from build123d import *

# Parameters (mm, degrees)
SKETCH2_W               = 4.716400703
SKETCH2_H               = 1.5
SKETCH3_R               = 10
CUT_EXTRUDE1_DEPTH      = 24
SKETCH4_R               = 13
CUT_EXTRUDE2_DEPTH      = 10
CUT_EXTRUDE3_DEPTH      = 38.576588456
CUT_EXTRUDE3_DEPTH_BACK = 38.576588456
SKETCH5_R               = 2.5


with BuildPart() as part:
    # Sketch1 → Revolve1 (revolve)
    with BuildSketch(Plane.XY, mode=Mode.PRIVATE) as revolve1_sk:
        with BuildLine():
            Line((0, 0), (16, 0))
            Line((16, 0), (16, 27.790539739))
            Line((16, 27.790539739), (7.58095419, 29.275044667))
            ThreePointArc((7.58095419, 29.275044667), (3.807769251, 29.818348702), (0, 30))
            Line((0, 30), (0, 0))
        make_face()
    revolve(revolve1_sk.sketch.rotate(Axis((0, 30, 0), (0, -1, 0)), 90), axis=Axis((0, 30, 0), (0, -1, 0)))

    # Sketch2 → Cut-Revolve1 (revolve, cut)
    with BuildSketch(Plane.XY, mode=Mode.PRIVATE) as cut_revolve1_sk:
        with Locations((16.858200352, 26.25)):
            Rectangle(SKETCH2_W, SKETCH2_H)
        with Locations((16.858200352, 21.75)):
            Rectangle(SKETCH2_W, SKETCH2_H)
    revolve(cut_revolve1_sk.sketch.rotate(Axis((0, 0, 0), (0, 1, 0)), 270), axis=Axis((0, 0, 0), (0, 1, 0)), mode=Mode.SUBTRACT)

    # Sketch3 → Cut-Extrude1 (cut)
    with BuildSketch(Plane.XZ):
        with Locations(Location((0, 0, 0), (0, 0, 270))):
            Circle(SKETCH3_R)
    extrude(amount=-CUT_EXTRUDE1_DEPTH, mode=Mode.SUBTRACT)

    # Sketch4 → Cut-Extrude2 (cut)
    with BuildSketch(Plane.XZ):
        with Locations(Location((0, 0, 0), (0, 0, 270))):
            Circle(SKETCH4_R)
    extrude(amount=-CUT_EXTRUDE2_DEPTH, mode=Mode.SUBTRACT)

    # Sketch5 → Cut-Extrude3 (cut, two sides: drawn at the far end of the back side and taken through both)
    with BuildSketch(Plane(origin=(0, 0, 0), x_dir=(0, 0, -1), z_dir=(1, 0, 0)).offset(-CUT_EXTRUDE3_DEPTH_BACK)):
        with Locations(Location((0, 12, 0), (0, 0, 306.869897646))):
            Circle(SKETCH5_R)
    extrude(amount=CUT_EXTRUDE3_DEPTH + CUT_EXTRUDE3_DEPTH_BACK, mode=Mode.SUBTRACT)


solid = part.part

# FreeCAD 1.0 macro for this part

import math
import FreeCAD as App
import Part
import Sketcher
from FreeCAD import Vector
Q = App.Units.Quantity

doc = App.newDocument("Part")
params = doc.addObject("Spreadsheet::Sheet", "Params")
for row, (alias, value) in enumerate([
    ("sketch1_radius", "40 mm"),
    ("sketch1_width", "16 mm"),
    ("sketch1_height", "30 mm"),
    ("revolution_angle", "360 deg"),
    ("sketch2_height", "1.5 mm"),
    ("groove_angle", "360 deg"),
    ("sketch3_diameter", "20 mm"),
    ("pocket1_length", "24 mm"),
    ("sketch4_diameter", "26 mm"),
    ("pocket2_length", "10 mm"),
    ("sketch5_diameter", "5 mm"),
], start=1):
    params.set(f"A{row}", alias)
    params.set(f"B{row}", "=" + value)
    params.setAlias(f"B{row}", alias)

body = doc.addObject("PartDesign::Body", "Body")

# Sketch on XY plane
sketch1 = body.newObject("Sketcher::SketchObject", "Sketch")
sketch1.AttachmentSupport = (doc.getObject("XY_Plane"), [""])
sketch1.MapMode = "FlatFace"
sketch1.addGeometry(Part.LineSegment(Vector(0, 0, 0), Vector(16, 0, 0)), False)
sketch1.addGeometry(Part.LineSegment(Vector(16, 0, 0), Vector(16, 27.79054, 0)), False)
sketch1.addGeometry(Part.LineSegment(Vector(16, 27.79054, 0), Vector(7.580954, 29.275045, 0)), False)
sketch1.addGeometry(Part.ArcOfCircle(Part.Circle(Vector(0, -10, 0), Vector(0, 0, 1), 40), math.radians(79.075002), math.radians(90)), False)
sketch1.addGeometry(Part.LineSegment(Vector(0, 30, 0), Vector(0, 0, 0)), False)
sketch1.addConstraint(Sketcher.Constraint("Coincident", 0, 2, 1, 1))
sketch1.addConstraint(Sketcher.Constraint("Coincident", 1, 2, 2, 1))
sketch1.addConstraint(Sketcher.Constraint("Coincident", 2, 2, 3, 1))
sketch1.addConstraint(Sketcher.Constraint("Coincident", 3, 2, 4, 1))
sketch1.addConstraint(Sketcher.Constraint("Coincident", 4, 2, 0, 1))
sketch1.addConstraint(Sketcher.Constraint("Horizontal", 0))
sketch1.addConstraint(Sketcher.Constraint("Vertical", 1))
sketch1.addConstraint(Sketcher.Constraint("Vertical", 4))
sketch1.addConstraint(Sketcher.Constraint("Coincident", 4, 2, -1, 1))
sketch1.addConstraint(Sketcher.Constraint("PointOnObject", 3, 3, -2))
sketch1.addConstraint(Sketcher.Constraint("Radius", 3, 40.0))
sketch1.addConstraint(Sketcher.Constraint("DistanceX", 0, 1, 0, 2, 16.0))
sketch1.addConstraint(Sketcher.Constraint("DistanceY", 4, 2, 4, 1, 30.0))
sketch1.addConstraint(Sketcher.Constraint("Angle", 2, Q("170 deg")))
sketch1.addConstraint(Sketcher.Constraint("DistanceY", 1, 1, 1, 2, 27.79054))
sketch1.setExpression("Constraints[10]", "Params.sketch1_radius")
sketch1.setExpression("Constraints[11]", "Params.sketch1_width")
sketch1.setExpression("Constraints[12]", "Params.sketch1_height")
revolution = body.newObject("PartDesign::Revolution", "Revolution")
revolution.Profile = sketch1
revolution.ReferenceAxis = (sketch1, ["V_Axis"])
revolution.setExpression("Angle", "Params.revolution_angle")

# Sketch on XY plane
sketch2 = body.newObject("Sketcher::SketchObject", "Sketch001")
sketch2.AttachmentSupport = (doc.getObject("XY_Plane"), [""])
sketch2.MapMode = "FlatFace"
sketch2.addGeometry(Part.LineSegment(Vector(14.5, 27, 0), Vector(14.5, 25.5, 0)), False)
sketch2.addGeometry(Part.LineSegment(Vector(14.5, 25.5, 0), Vector(19.216401, 25.5, 0)), False)
sketch2.addGeometry(Part.LineSegment(Vector(19.216401, 25.5, 0), Vector(19.216401, 27, 0)), False)
sketch2.addGeometry(Part.LineSegment(Vector(19.216401, 27, 0), Vector(14.5, 27, 0)), False)
sketch2.addGeometry(Part.LineSegment(Vector(14.5, 22.5, 0), Vector(14.5, 21, 0)), False)
sketch2.addGeometry(Part.LineSegment(Vector(14.5, 21, 0), Vector(19.216401, 21, 0)), False)
sketch2.addGeometry(Part.LineSegment(Vector(19.216401, 21, 0), Vector(19.216401, 22.5, 0)), False)
sketch2.addGeometry(Part.LineSegment(Vector(19.216401, 22.5, 0), Vector(14.5, 22.5, 0)), False)
sketch2.addConstraint(Sketcher.Constraint("Coincident", 0, 2, 1, 1))
sketch2.addConstraint(Sketcher.Constraint("Coincident", 1, 2, 2, 1))
sketch2.addConstraint(Sketcher.Constraint("Coincident", 2, 2, 3, 1))
sketch2.addConstraint(Sketcher.Constraint("Coincident", 3, 2, 0, 1))
sketch2.addConstraint(Sketcher.Constraint("Coincident", 4, 2, 5, 1))
sketch2.addConstraint(Sketcher.Constraint("Coincident", 5, 2, 6, 1))
sketch2.addConstraint(Sketcher.Constraint("Coincident", 6, 2, 7, 1))
sketch2.addConstraint(Sketcher.Constraint("Coincident", 7, 2, 4, 1))
sketch2.addConstraint(Sketcher.Constraint("Vertical", 0))
sketch2.addConstraint(Sketcher.Constraint("Horizontal", 1))
sketch2.addConstraint(Sketcher.Constraint("Vertical", 2))
sketch2.addConstraint(Sketcher.Constraint("Horizontal", 3))
sketch2.addConstraint(Sketcher.Constraint("Vertical", 4))
sketch2.addConstraint(Sketcher.Constraint("Horizontal", 5))
sketch2.addConstraint(Sketcher.Constraint("Vertical", 6))
sketch2.addConstraint(Sketcher.Constraint("Horizontal", 7))
sketch2.addConstraint(Sketcher.Constraint("Vertical", 3, 2, 4, 2))
sketch2.addConstraint(Sketcher.Constraint("Vertical", 2, 2, 5, 2))
sketch2.addConstraint(Sketcher.Constraint("Equal", 2, 4))
sketch2.addConstraint(Sketcher.Constraint("DistanceY", 0, 2, 0, 1, 1.5))
sketch2.addConstraint(Sketcher.Constraint("DistanceY", -1, 1, 2, 2, 27.0))
sketch2.addConstraint(Sketcher.Constraint("DistanceY", -1, 1, 4, 2, 21.0))
sketch2.addConstraint(Sketcher.Constraint("DistanceX", -1, 1, 0, 2, 14.5))
sketch2.addConstraint(Sketcher.Constraint("DistanceX", 1, 1, 1, 2, 4.716401))
sketch2.setExpression("Constraints[19]", "Params.sketch2_height")
groove = body.newObject("PartDesign::Groove", "Groove")
groove.Profile = sketch2
groove.ReferenceAxis = (sketch2, ["V_Axis"])
groove.setExpression("Angle", "Params.groove_angle")

# Sketch on XZ plane
sketch3 = body.newObject("Sketcher::SketchObject", "Sketch002")
sketch3.AttachmentSupport = (doc.getObject("XZ_Plane"), [""])
sketch3.MapMode = "FlatFace"
sketch3.addGeometry(Part.Circle(Vector(0, 0, 0), Vector(0, 0, 1), 10), False)
sketch3.addConstraint(Sketcher.Constraint("Coincident", 0, 3, -1, 1))
sketch3.addConstraint(Sketcher.Constraint("Diameter", 0, 20.0))
sketch3.setExpression("Constraints[1]", "Params.sketch3_diameter")
pocket1 = body.newObject("PartDesign::Pocket", "Pocket")
pocket1.Profile = sketch3
pocket1.setExpression("Length", "Params.pocket1_length")

# Sketch on XZ plane
sketch4 = body.newObject("Sketcher::SketchObject", "Sketch003")
sketch4.AttachmentSupport = (doc.getObject("XZ_Plane"), [""])
sketch4.MapMode = "FlatFace"
sketch4.addGeometry(Part.Circle(Vector(0, 0, 0), Vector(0, 0, 1), 13), False)
sketch4.addConstraint(Sketcher.Constraint("Coincident", 0, 3, -1, 1))
sketch4.addConstraint(Sketcher.Constraint("Diameter", 0, 26.0))
sketch4.setExpression("Constraints[1]", "Params.sketch4_diameter")
pocket2 = body.newObject("PartDesign::Pocket", "Pocket001")
pocket2.Profile = sketch4
pocket2.setExpression("Length", "Params.pocket2_length")

# Sketch on YZ plane
sketch5 = body.newObject("Sketcher::SketchObject", "Sketch004")
sketch5.AttachmentSupport = (doc.getObject("YZ_Plane"), [""])
sketch5.MapMode = "FlatFace"
sketch5.addGeometry(Part.Circle(Vector(12, 0, 0), Vector(0, 0, 1), 2.5), False)
sketch5.addConstraint(Sketcher.Constraint("PointOnObject", 0, 3, -1))
sketch5.addConstraint(Sketcher.Constraint("Diameter", 0, 5.0))
sketch5.addConstraint(Sketcher.Constraint("DistanceX", -1, 1, 0, 3, 12.0))
sketch5.setExpression("Constraints[1]", "Params.sketch5_diameter")
pocket3 = body.newObject("PartDesign::Pocket", "Pocket002")
pocket3.Profile = sketch5
pocket3.Type = "ThroughAll"
pocket3.Midplane = True

doc.recompute()
